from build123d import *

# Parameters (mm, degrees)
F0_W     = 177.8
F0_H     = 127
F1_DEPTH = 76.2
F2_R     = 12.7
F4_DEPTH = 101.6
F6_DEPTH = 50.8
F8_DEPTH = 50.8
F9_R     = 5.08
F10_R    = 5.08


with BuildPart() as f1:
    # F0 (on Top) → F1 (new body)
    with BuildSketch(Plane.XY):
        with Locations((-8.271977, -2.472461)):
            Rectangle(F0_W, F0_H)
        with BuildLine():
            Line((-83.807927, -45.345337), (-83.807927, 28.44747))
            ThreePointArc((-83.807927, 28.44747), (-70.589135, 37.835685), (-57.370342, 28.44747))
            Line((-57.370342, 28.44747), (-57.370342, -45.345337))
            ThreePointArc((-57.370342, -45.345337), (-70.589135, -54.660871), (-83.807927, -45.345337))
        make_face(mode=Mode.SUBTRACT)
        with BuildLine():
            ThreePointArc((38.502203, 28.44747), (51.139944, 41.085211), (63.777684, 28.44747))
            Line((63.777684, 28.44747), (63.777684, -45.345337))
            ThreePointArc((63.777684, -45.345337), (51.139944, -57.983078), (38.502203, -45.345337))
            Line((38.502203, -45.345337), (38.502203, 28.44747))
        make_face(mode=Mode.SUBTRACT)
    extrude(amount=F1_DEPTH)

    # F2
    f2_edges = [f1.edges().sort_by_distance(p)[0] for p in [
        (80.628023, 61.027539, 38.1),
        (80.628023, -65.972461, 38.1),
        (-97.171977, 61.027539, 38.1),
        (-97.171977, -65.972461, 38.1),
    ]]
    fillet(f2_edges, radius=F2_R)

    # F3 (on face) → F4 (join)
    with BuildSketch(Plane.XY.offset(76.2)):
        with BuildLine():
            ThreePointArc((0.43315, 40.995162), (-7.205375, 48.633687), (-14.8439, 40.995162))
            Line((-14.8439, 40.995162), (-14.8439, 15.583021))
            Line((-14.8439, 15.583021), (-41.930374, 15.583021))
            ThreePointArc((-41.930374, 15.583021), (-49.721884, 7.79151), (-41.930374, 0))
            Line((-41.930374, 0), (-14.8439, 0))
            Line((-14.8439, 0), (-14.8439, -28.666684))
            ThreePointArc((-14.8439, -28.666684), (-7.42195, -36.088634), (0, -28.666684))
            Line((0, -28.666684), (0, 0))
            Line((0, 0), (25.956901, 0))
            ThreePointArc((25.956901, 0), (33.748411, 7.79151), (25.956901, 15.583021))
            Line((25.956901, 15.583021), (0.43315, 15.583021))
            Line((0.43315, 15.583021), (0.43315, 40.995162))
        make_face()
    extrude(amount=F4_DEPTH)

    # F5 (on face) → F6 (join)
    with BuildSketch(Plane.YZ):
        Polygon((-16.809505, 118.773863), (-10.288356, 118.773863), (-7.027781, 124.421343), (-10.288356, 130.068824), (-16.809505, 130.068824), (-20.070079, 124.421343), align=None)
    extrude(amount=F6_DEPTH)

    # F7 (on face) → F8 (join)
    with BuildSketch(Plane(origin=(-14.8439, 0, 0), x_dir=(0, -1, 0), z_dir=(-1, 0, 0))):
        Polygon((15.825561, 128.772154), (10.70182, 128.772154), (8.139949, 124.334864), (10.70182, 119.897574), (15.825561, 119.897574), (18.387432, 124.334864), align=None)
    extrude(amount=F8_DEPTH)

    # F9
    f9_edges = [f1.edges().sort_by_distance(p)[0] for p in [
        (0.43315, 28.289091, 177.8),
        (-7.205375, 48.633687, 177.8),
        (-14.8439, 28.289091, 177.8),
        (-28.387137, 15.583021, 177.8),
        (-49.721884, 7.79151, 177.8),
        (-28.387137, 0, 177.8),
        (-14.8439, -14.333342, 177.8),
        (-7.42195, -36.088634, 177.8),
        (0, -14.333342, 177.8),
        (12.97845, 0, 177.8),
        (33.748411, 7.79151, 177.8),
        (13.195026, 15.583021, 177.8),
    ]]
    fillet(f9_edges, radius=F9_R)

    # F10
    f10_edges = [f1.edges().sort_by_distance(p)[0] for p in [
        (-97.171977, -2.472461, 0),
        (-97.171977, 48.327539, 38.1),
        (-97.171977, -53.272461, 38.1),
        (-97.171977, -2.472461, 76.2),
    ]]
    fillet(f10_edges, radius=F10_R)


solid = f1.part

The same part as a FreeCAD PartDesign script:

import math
import FreeCAD as App
import Part
import Sketcher
Q = App.Units.Quantity


def edges_at(feature, points):
    """Names of the edges that pass closest to the given points."""
    edges = feature.Shape.Edges
    near = lambda p: min(range(len(edges)), key=lambda i: edges[i].distToShape(Part.Vertex(*p))[0])
    return sorted({f"Edge{near(p) + 1}" for p in points})

doc = App.newDocument("Part")
body = doc.addObject("PartDesign::Body", "Body")

# Sketch on XY plane
sketch1 = doc.addObject("Sketcher::SketchObject", "Sketch")
body.addObject(sketch1)
sketch1.AttachmentSupport = (doc.XY_Plane, [""])
sketch1.MapMode = "FlatFace"
sketch1.addGeometry(Part.LineSegment(App.Vector(-97.171977, 61.027539, 0), App.Vector(-97.171977, -65.972461, 0)), False)
sketch1.addGeometry(Part.LineSegment(App.Vector(-97.171977, -65.972461, 0), App.Vector(80.628023, -65.972461, 0)), False)
sketch1.addGeometry(Part.LineSegment(App.Vector(80.628023, -65.972461, 0), App.Vector(80.628023, 61.027539, 0)), False)
sketch1.addGeometry(Part.LineSegment(App.Vector(80.628023, 61.027539, 0), App.Vector(-97.171977, 61.027539, 0)), False)
sketch1.addGeometry(Part.LineSegment(App.Vector(38.502203, -45.345337, 0), App.Vector(38.502203, 28.44747, 0)), False)
sketch1.addGeometry(Part.ArcOfCircle(Part.Circle(App.Vector(51.139944, 28.447471, 0), App.Vector(0, 0, 1), 12.63774), math.radians(-0.000002), math.radians(180.000002)), False)
sketch1.addGeometry(Part.LineSegment(App.Vector(63.777684, 28.44747, 0), App.Vector(63.777684, -45.345337, 0)), False)
sketch1.addGeometry(Part.ArcOfCircle(Part.Circle(App.Vector(51.139944, -45.345337, 0), App.Vector(0, 0, 1), 12.63774), math.radians(179.999998), math.radians(360.000002)), False)
sketch1.addGeometry(Part.ArcOfCircle(Part.Circle(App.Vector(-70.589135, -40.624335, 0), App.Vector(0, 0, 1), 14.036536), math.radians(-160.34616), math.radians(-19.65384)), False)
sketch1.addGeometry(Part.LineSegment(App.Vector(-83.807927, -45.345337, 0), App.Vector(-83.807927, 28.44747, 0)), False)
sketch1.addGeometry(Part.ArcOfCircle(Part.Circle(App.Vector(-70.589135, 23.835417, 0), App.Vector(0, 0, 1), 14.000268), math.radians(19.233943), math.radians(160.766057)), False)
sketch1.addGeometry(Part.LineSegment(App.Vector(-57.370342, 28.44747, 0), App.Vector(-57.370342, -45.345337, 0)), False)
sketch1.addConstraint(Sketcher.Constraint("Coincident", 0, 2, 1, 1))
sketch1.addConstraint(Sketcher.Constraint("Coincident", 1, 2, 2, 1))
sketch1.addConstraint(Sketcher.Constraint("Coincident", 2, 2, 3, 1))
sketch1.addConstraint(Sketcher.Constraint("Coincident", 3, 2, 0, 1))
sketch1.addConstraint(Sketcher.Constraint("Tangent", 4, 2, 5, 2))
sketch1.addConstraint(Sketcher.Constraint("Tangent", 5, 1, 6, 1))
sketch1.addConstraint(Sketcher.Constraint("Tangent", 6, 2, 7, 2))
sketch1.addConstraint(Sketcher.Constraint("Tangent", 7, 1, 4, 1))
sketch1.addConstraint(Sketcher.Constraint("Coincident", 8, 1, 9, 1))
sketch1.addConstraint(Sketcher.Constraint("Coincident", 9, 2, 10, 2))
sketch1.addConstraint(Sketcher.Constraint("Coincident", 10, 1, 11, 1))
sketch1.addConstraint(Sketcher.Constraint("Coincident", 11, 2, 8, 2))
sketch1.addConstraint(Sketcher.Constraint("Vertical", 0))
sketch1.addConstraint(Sketcher.Constraint("Horizontal", 1))
sketch1.addConstraint(Sketcher.Constraint("Vertical", 2))
sketch1.addConstraint(Sketcher.Constraint("Horizontal", 3))
sketch1.addConstraint(Sketcher.Constraint("Vertical", 4))
sketch1.addConstraint(Sketcher.Constraint("Vertical", 6))
sketch1.addConstraint(Sketcher.Constraint("Vertical", 9))
sketch1.addConstraint(Sketcher.Constraint("Vertical", 11))
sketch1.addConstraint(Sketcher.Constraint("Horizontal", 7, 1, 8, 1))
sketch1.addConstraint(Sketcher.Constraint("Horizontal", 5, 1, 9, 2))
sketch1.addConstraint(Sketcher.Constraint("Horizontal", 9, 2, 10, 1))
sketch1.addConstraint(Sketcher.Constraint("Horizontal", 8, 1, 11, 2))
sketch1.addConstraint(Sketcher.Constraint("DistanceX", 1, 1, 1, 2, Q("7 in")))
sketch1.addConstraint(Sketcher.Constraint("DistanceY", 0, 2, 0, 1, Q("5 in")))
sketch1.addConstraint(Sketcher.Constraint("Radius", 5, Q("12.63774 mm")))
sketch1.addConstraint(Sketcher.Constraint("Radius", 10, Q("14.000268 mm")))
sketch1.addConstraint(Sketcher.Constraint("Radius", 8, Q("14.036536 mm")))
sketch1.addConstraint(Sketcher.Constraint("DistanceY", 8, 1, 8, 3, Q("4.721002 mm")))
sketch1.addConstraint(Sketcher.Constraint("DistanceY", 4, 1, 4, 2, Q("73.792807 mm")))
sketch1.addConstraint(Sketcher.Constraint("DistanceY", -1, 1, 5, 3, Q("28.447471 mm")))
sketch1.addConstraint(Sketcher.Constraint("DistanceY", 0, 2, -1, 1, Q("65.972461 mm")))
sketch1.addConstraint(Sketcher.Constraint("DistanceX", 10, 1, -1, 1, Q("57.370342 mm")))
sketch1.addConstraint(Sketcher.Constraint("DistanceX", 8, 3, 7, 3, Q("121.729078 mm")))
sketch1.addConstraint(Sketcher.Constraint("DistanceX", 0, 2, 7, 3, Q("148.31192 mm")))
pad1 = doc.addObject("PartDesign::Pad", "Pad")
body.addObject(pad1)
pad1.Profile = sketch1
pad1.Length = Q("3 in")
doc.recompute()

fillet = doc.addObject("PartDesign::Fillet", "Fillet")
body.addObject(fillet)
fillet.Base = (pad1, edges_at(pad1, [
    (80.628, 61.028, 38.1),
    (80.628, -65.972, 38.1),
    (-97.172, 61.028, 38.1),
    (-97.172, -65.972, 38.1),
]))
fillet.Radius = Q("0.5 in")

# Sketch on XY plane
sketch2 = doc.addObject("Sketcher::SketchObject", "Sketch001")
body.addObject(sketch2)
sketch2.AttachmentSupport = (doc.XY_Plane, [""])
sketch2.MapMode = "FlatFace"
sketch2.AttachmentOffset = App.Placement(App.Vector(0, 0, 3 * 25.4), App.Rotation())
sketch2.addGeometry(Part.ArcOfCircle(Part.Circle(App.Vector(-7.205375, 40.995162, 0), App.Vector(0, 0, 1), 7.638525), math.radians(0), math.radians(180)), False)
sketch2.addGeometry(Part.LineSegment(App.Vector(-14.8439, 40.995162, 0), App.Vector(-14.8439, 15.583021, 0)), False)
sketch2.addGeometry(Part.LineSegment(App.Vector(-14.8439, 15.583021, 0), App.Vector(-41.930374, 15.583021, 0)), False)
sketch2.addGeometry(Part.ArcOfCircle(Part.Circle(App.Vector(-41.930374, 7.791511, 0), App.Vector(0, 0, 1), 7.791511), math.radians(90.000004), math.radians(269.999996)), False)
sketch2.addGeometry(Part.LineSegment(App.Vector(-41.930374, 0, 0), App.Vector(-14.8439, 0, 0)), False)
sketch2.addGeometry(Part.LineSegment(App.Vector(-14.8439, 0, 0), App.Vector(-14.8439, -28.666684, 0)), False)
sketch2.addGeometry(Part.ArcOfCircle(Part.Circle(App.Vector(-7.42195, -28.666684, 0), App.Vector(0, 0, 1), 7.42195), math.radians(180), math.radians(360)), False)
sketch2.addGeometry(Part.LineSegment(App.Vector(0, -28.666684, 0), App.Vector(0, 0, 0)), False)
sketch2.addGeometry(Part.LineSegment(App.Vector(0, 0, 0), App.Vector(25.956901, 0, 0)), False)
sketch2.addGeometry(Part.ArcOfCircle(Part.Circle(App.Vector(25.9569, 7.791511, 0), App.Vector(0, 0, 1), 7.791511), math.radians(-89.999996), math.radians(89.999996)), False)
sketch2.addGeometry(Part.LineSegment(App.Vector(25.956901, 15.583021, 0), App.Vector(0.43315, 15.583021, 0)), False)
sketch2.addGeometry(Part.LineSegment(App.Vector(0.43315, 15.583021, 0), App.Vector(0.43315, 40.995162, 0)), False)
sketch2.addConstraint(Sketcher.Constraint("Tangent", 0, 2, 1, 1))
sketch2.addConstraint(Sketcher.Constraint("Coincident", 1, 2, 2, 1))
sketch2.addConstraint(Sketcher.Constraint("Tangent", 2, 2, 3, 1))
sketch2.addConstraint(Sketcher.Constraint("Tangent", 3, 2, 4, 1))
sketch2.addConstraint(Sketcher.Constraint("Coincident", 4, 2, 5, 1))
sketch2.addConstraint(Sketcher.Constraint("Tangent", 5, 2, 6, 1))
sketch2.addConstraint(Sketcher.Constraint("Tangent", 6, 2, 7, 1))
sketch2.addConstraint(Sketcher.Constraint("Coincident", 7, 2, 8, 1))
sketch2.addConstraint(Sketcher.Constraint("Tangent", 8, 2, 9, 1))
sketch2.addConstraint(Sketcher.Constraint("Tangent", 9, 2, 10, 1))
sketch2.addConstraint(Sketcher.Constraint("Coincident", 10, 2, 11, 1))
sketch2.addConstraint(Sketcher.Constraint("Tangent", 11, 2, 0, 1))
sketch2.addConstraint(Sketcher.Constraint("Vertical", 1))
sketch2.addConstraint(Sketcher.Constraint("Horizontal", 2))
sketch2.addConstraint(Sketcher.Constraint("Horizontal", 4))
sketch2.addConstraint(Sketcher.Constraint("Vertical", 5))
sketch2.addConstraint(Sketcher.Constraint("Vertical", 7))
sketch2.addConstraint(Sketcher.Constraint("Horizontal", 8))
sketch2.addConstraint(Sketcher.Constraint("Horizontal", 10))
sketch2.addConstraint(Sketcher.Constraint("Vertical", 11))
sketch2.addConstraint(Sketcher.Constraint("Coincident", 7, 2, -1, 1))
sketch2.addConstraint(Sketcher.Constraint("Equal", 3, 9))
sketch2.addConstraint(Sketcher.Constraint("PointOnObject", 3, 2, -1))
sketch2.addConstraint(Sketcher.Constraint("Vertical", 1, 2, 4, 2))
sketch2.addConstraint(Sketcher.Constraint("Radius", 3, Q("7.791511 mm")))
sketch2.addConstraint(Sketcher.Constraint("Radius", 6, Q("7.42195 mm")))
sketch2.addConstraint(Sketcher.Constraint("DistanceX", 8, 1, 8, 2, Q("25.956901 mm")))
sketch2.addConstraint(Sketcher.Constraint("Radius", 0, Q("7.638525 mm")))
sketch2.addConstraint(Sketcher.Constraint("DistanceY", 1, 2, 1, 1, Q("25.412141 mm")))
sketch2.addConstraint(Sketcher.Constraint("DistanceX", 3, 3, 0, 3, Q("34.724998 mm")))
sketch2.addConstraint(Sketcher.Constraint("DistanceY", 5, 2, 5, 1, Q("28.666684 mm")))
pad2 = doc.addObject("PartDesign::Pad", "Pad001")
body.addObject(pad2)
pad2.Profile = sketch2
pad2.Length = Q("4 in")

# Sketch on YZ plane
sketch3 = doc.addObject("Sketcher::SketchObject", "Sketch002")
body.addObject(sketch3)
sketch3.AttachmentSupport = (doc.YZ_Plane, [""])
sketch3.MapMode = "FlatFace"
sketch3.addGeometry(Part.LineSegment(App.Vector(-16.809505, 118.773863, 0), App.Vector(-10.288356, 118.773863, 0)), False)
sketch3.addGeometry(Part.LineSegment(App.Vector(-10.288356, 118.773863, 0), App.Vector(-7.027781, 124.421343, 0)), False)
sketch3.addGeometry(Part.LineSegment(App.Vector(-7.027781, 124.421343, 0), App.Vector(-10.288356, 130.068824, 0)), False)
sketch3.addGeometry(Part.LineSegment(App.Vector(-10.288356, 130.068824, 0), App.Vector(-16.809505, 130.068824, 0)), False)
sketch3.addGeometry(Part.LineSegment(App.Vector(-16.809505, 130.068824, 0), App.Vector(-20.070079, 124.421343, 0)), False)
sketch3.addGeometry(Part.LineSegment(App.Vector(-20.070079, 124.421343, 0), App.Vector(-16.809505, 118.773863, 0)), False)
sketch3.addConstraint(Sketcher.Constraint("Coincident", 0, 2, 1, 1))
sketch3.addConstraint(Sketcher.Constraint("Coincident", 1, 2, 2, 1))
sketch3.addConstraint(Sketcher.Constraint("Coincident", 2, 2, 3, 1))
sketch3.addConstraint(Sketcher.Constraint("Coincident", 3, 2, 4, 1))
sketch3.addConstraint(Sketcher.Constraint("Coincident", 4, 2, 5, 1))
sketch3.addConstraint(Sketcher.Constraint("Coincident", 5, 2, 0, 1))
sketch3.addConstraint(Sketcher.Constraint("Horizontal", 0))
sketch3.addConstraint(Sketcher.Constraint("Horizontal", 3))
sketch3.addConstraint(Sketcher.Constraint("Parallel", 1, 4))
sketch3.addConstraint(Sketcher.Constraint("Parallel", 2, 5))
sketch3.addConstraint(Sketcher.Constraint("Horizontal", 1, 2, 4, 2))
sketch3.addConstraint(Sketcher.Constraint("Vertical", 0, 2, 2, 2))
sketch3.addConstraint(Sketcher.Constraint("Vertical", 3, 2, 5, 2))
sketch3.addConstraint(Sketcher.Constraint("Angle", 1, Q("59.999993 deg")))
sketch3.addConstraint(Sketcher.Constraint("DistanceX", 0, 1, 0, 2, Q("6.521149 mm")))
sketch3.addConstraint(Sketcher.Constraint("Distance", 1, Q("6.521149 mm")))
sketch3.addConstraint(Sketcher.Constraint("DistanceX", 1, 2, -1, 1, Q("7.027781 mm")))
sketch3.addConstraint(Sketcher.Constraint("DistanceY", -1, 1, 0, 2, Q("118.773863 mm")))
pad3 = doc.addObject("PartDesign::Pad", "Pad002")
body.addObject(pad3)
pad3.Profile = sketch3
pad3.Length = Q("2 in")

# Sketch on YZ plane
sketch4 = doc.addObject("Sketcher::SketchObject", "Sketch003")
body.addObject(sketch4)
sketch4.AttachmentSupport = (doc.YZ_Plane, [""])
sketch4.MapMode = "FlatFace"
sketch4.AttachmentOffset = App.Placement(App.Vector(0, 0, -14.8439), App.Rotation())
sketch4.addGeometry(Part.LineSegment(App.Vector(-15.825561, 128.772154, 0), App.Vector(-10.70182, 128.772154, 0)), False)
sketch4.addGeometry(Part.LineSegment(App.Vector(-10.70182, 128.772154, 0), App.Vector(-8.139949, 124.334864, 0)), False)
sketch4.addGeometry(Part.LineSegment(App.Vector(-8.139949, 124.334864, 0), App.Vector(-10.70182, 119.897574, 0)), False)
sketch4.addGeometry(Part.LineSegment(App.Vector(-10.70182, 119.897574, 0), App.Vector(-15.825561, 119.897574, 0)), False)
sketch4.addGeometry(Part.LineSegment(App.Vector(-15.825561, 119.897574, 0), App.Vector(-18.387432, 124.334864, 0)), False)
sketch4.addGeometry(Part.LineSegment(App.Vector(-18.387432, 124.334864, 0), App.Vector(-15.825561, 128.772154, 0)), False)
sketch4.addConstraint(Sketcher.Constraint("Coincident", 0, 2, 1, 1))
sketch4.addConstraint(Sketcher.Constraint("Coincident", 1, 2, 2, 1))
sketch4.addConstraint(Sketcher.Constraint("Coincident", 2, 2, 3, 1))
sketch4.addConstraint(Sketcher.Constraint("Coincident", 3, 2, 4, 1))
sketch4.addConstraint(Sketcher.Constraint("Coincident", 4, 2, 5, 1))
sketch4.addConstraint(Sketcher.Constraint("Coincident", 5, 2, 0, 1))
sketch4.addConstraint(Sketcher.Constraint("Horizontal", 0))
sketch4.addConstraint(Sketcher.Constraint("Horizontal", 3))
sketch4.addConstraint(Sketcher.Constraint("Parallel", 1, 4))
sketch4.addConstraint(Sketcher.Constraint("Parallel", 2, 5))
sketch4.addConstraint(Sketcher.Constraint("Horizontal", 1, 2, 4, 2))
sketch4.addConstraint(Sketcher.Constraint("Vertical", 0, 2, 2, 2))
sketch4.addConstraint(Sketcher.Constraint("Vertical", 3, 2, 5, 2))
sketch4.addConstraint(Sketcher.Constraint("Angle", 1, Q("-59.999996 deg")))
sketch4.addConstraint(Sketcher.Constraint("DistanceX", 0, 1, 0, 2, Q("5.123741 mm")))
sketch4.addConstraint(Sketcher.Constraint("Distance", 1, Q("5.123741 mm")))
sketch4.addConstraint(Sketcher.Constraint("DistanceX", 0, 2, -1, 1, Q("10.70182 mm")))
sketch4.addConstraint(Sketcher.Constraint("DistanceY", -1, 1, 0, 2, Q("128.772154 mm")))
pad4 = doc.addObject("PartDesign::Pad", "Pad003")
body.addObject(pad4)
pad4.Profile = sketch4
pad4.Length = Q("2 in")
pad4.Reversed = True
doc.recompute()

fillet2 = doc.addObject("PartDesign::Fillet", "Fillet001")
body.addObject(fillet2)
fillet2.Base = (pad4, edges_at(pad4, [
    (0.433, 28.289, 177.8),
    (-7.205, 48.634, 177.8),
    (-14.844, 28.289, 177.8),
    (-28.387, 15.583, 177.8),
    (-49.722, 7.792, 177.8),
    (-28.387, 0, 177.8),
    (-14.844, -14.333, 177.8),
    (-7.422, -36.089, 177.8),
    (0, -14.333, 177.8),
    (12.978, 0, 177.8),
    (33.748, 7.792, 177.8),
    (13.195, 15.583, 177.8),
]))
fillet2.Radius = Q("0.2 in")
doc.recompute()

fillet3 = doc.addObject("PartDesign::Fillet", "Fillet002")
body.addObject(fillet3)
fillet3.Base = (fillet2, edges_at(fillet2, [
    (-97.172, -2.472, 0),
    (-97.172, 48.328, 38.1),
    (-97.172, -53.272, 38.1),
    (-97.172, -2.472, 76.2),
]))
fillet3.Radius = Q("0.2 in")

doc.recompute()
